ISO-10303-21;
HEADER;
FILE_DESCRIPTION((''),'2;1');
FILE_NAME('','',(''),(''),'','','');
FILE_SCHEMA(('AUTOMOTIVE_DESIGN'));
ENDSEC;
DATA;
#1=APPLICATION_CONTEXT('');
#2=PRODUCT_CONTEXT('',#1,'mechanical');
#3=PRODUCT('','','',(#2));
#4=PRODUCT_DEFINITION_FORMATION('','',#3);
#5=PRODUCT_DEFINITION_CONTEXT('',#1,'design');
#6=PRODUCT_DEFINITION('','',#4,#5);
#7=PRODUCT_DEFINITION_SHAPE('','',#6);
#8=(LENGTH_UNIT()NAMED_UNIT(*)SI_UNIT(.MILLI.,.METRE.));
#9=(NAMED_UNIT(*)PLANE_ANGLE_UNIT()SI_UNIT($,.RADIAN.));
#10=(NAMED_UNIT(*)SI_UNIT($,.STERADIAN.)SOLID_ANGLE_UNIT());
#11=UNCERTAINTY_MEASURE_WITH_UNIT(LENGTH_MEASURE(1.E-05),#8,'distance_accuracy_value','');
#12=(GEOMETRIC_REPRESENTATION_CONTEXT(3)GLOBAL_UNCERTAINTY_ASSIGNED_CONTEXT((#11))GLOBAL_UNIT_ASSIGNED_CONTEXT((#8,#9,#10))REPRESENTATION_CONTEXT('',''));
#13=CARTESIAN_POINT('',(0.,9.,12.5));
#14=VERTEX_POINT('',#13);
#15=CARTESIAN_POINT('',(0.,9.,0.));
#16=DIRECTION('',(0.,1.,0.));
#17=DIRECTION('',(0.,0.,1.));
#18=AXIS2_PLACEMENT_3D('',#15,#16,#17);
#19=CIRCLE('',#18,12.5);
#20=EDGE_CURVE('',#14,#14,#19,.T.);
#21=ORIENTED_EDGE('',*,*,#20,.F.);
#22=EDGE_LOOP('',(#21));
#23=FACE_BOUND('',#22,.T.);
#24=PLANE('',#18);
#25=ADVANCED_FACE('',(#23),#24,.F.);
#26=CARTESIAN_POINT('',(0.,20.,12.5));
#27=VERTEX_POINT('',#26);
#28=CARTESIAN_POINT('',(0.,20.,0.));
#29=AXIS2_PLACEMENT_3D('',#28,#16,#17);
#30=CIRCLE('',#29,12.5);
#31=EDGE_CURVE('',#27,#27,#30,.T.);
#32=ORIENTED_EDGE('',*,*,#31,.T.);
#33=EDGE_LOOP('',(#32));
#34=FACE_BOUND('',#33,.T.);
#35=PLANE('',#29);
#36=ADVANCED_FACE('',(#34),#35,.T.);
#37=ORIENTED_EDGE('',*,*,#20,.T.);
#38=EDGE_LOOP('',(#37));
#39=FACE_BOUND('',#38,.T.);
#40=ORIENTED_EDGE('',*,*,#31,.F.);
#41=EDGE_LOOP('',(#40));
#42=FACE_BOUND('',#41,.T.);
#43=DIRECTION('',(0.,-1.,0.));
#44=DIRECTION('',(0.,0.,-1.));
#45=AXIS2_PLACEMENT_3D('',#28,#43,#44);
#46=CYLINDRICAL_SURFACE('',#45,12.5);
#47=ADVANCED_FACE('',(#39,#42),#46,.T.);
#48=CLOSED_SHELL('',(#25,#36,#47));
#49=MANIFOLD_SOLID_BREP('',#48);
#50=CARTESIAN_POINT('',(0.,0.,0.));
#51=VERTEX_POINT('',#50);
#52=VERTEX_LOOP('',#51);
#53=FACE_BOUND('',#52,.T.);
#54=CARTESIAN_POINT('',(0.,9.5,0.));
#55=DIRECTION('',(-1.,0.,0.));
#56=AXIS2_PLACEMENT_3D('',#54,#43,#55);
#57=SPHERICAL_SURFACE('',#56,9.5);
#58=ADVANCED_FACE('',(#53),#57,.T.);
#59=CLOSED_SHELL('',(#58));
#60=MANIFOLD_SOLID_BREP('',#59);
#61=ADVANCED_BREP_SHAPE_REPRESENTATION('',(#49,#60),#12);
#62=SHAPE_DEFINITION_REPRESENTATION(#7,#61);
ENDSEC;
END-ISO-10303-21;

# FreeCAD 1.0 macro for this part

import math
import FreeCAD as App
import Part
import Sketcher

V = App.Vector
Q = App.Units.Quantity

doc = App.newDocument("Part")
body = doc.addObject("PartDesign::Body", "Body")

# Sketch on XY plane
sketch1 = body.newObject("Sketcher::SketchObject", "Sketch")
sketch1.AttachmentSupport = (doc.getObject("XY_Plane"), [""])
sketch1.MapMode = "FlatFace"
sketch1.addGeometry([
    Part.LineSegment(V(0, 0, 0), V(0, 19, 0)),
    Part.ArcOfCircle(Part.Circle(V(0, 10, 0), V(0, 0, 1), 10), math.radians(90), math.radians(270)),
], False)
sketch1.addConstraint([
    Sketcher.Constraint("Coincident", 0, 1, 1, 2),
    Sketcher.Constraint("Coincident", 1, 1, 0, 2),
    Sketcher.Constraint("Vertical", 0),
    Sketcher.Constraint("Coincident", 0, 1, -1, 1),
    Sketcher.Constraint("PointOnObject", 1, 3, -2),
    Sketcher.Constraint("Radius", 1, Q("9.5 mm")),
])
revolution = body.newObject("PartDesign::Revolution", "Revolution")
revolution.Profile = sketch1
revolution.ReferenceAxis = (sketch1, ["V_Axis"])
revolution.Angle = 360
body2 = doc.addObject("PartDesign::Body", "Body001")

# Sketch on XZ plane
sketch2 = body2.newObject("Sketcher::SketchObject", "Sketch001")
sketch2.AttachmentSupport = (doc.getObject("XZ_Plane001"), [""])
sketch2.MapMode = "FlatFace"
sketch2.AttachmentOffset = App.Placement(V(0, 0, -9), App.Rotation())
sketch2.addGeometry(Part.Circle(V(0, 0, 0), V(0, 0, 1), 12), False)
sketch2.addConstraint([
    Sketcher.Constraint("Coincident", 0, 3, -1, 1),
    Sketcher.Constraint("Diameter", 0, Q("25 mm")),
])
pad1 = body2.newObject("PartDesign::Pad", "Pad")
pad1.Profile = sketch2
pad1.Length = 11
pad1.Reversed = True

doc.recompute()
